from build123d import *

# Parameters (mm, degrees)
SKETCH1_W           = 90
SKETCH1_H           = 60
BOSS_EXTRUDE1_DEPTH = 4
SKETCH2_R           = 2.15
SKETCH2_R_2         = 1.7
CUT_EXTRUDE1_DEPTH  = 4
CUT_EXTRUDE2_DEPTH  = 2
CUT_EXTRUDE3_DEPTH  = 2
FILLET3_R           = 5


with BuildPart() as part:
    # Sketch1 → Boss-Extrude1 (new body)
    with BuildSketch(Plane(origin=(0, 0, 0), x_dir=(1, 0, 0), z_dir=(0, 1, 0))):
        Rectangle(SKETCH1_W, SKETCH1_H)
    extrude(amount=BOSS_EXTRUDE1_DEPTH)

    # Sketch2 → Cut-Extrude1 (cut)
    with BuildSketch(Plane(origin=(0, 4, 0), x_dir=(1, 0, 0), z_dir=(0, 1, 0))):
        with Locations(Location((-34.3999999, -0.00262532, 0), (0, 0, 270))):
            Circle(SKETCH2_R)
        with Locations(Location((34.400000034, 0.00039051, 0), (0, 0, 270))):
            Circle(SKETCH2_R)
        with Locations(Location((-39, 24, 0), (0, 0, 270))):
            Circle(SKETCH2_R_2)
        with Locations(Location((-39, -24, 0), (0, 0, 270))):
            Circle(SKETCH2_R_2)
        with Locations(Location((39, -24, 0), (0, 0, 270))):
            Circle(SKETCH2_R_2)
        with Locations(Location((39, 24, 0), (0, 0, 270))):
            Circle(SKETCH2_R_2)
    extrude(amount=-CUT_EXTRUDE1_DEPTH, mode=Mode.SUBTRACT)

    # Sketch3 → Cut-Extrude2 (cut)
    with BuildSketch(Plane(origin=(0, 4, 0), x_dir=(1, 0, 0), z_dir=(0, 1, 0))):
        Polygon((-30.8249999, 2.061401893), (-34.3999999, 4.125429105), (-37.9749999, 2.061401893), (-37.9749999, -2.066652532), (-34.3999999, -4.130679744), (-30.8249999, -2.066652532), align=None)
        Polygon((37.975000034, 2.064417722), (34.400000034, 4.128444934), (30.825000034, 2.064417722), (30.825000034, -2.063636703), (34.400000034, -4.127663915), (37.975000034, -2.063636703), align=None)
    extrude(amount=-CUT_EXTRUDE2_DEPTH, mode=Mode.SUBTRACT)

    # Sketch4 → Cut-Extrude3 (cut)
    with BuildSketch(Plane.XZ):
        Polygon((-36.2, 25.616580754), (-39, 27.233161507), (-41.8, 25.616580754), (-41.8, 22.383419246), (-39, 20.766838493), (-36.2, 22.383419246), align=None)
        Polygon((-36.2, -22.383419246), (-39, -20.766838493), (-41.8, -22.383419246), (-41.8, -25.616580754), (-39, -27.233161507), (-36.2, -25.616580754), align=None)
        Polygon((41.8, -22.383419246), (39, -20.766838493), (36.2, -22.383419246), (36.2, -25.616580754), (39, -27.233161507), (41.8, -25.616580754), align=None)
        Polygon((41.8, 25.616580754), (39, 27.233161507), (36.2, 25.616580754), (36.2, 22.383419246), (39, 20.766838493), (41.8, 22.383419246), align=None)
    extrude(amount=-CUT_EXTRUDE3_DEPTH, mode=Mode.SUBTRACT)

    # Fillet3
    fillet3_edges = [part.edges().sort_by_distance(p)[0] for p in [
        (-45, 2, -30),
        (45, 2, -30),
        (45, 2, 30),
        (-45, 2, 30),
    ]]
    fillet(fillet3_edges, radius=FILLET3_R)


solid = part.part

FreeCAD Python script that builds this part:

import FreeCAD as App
import Part
import Sketcher
from FreeCAD import Vector
Q = App.Units.Quantity


def edges_at(feature, points):
    """Names of the edges that pass closest to the given points."""
    edges = feature.Shape.Edges
    near = lambda p: min(range(len(edges)), key=lambda i: edges[i].distToShape(Part.Vertex(*p))[0])
    return sorted({f"Edge{near(p) + 1}" for p in points})

doc = App.newDocument("Part")
body = doc.addObject("PartDesign::Body", "Body")

sketch1 = body.newObject("Sketcher::SketchObject", "Sketch")
sketch1.AttachmentSupport = (doc.getObject("XZ_Plane"), [""])
sketch1.MapMode = "FlatFace"
sketch1.addGeometry(Part.LineSegment(Vector(-45, -30, 0), Vector(-45, 30, 0)), False)
sketch1.addGeometry(Part.LineSegment(Vector(-45, 30, 0), Vector(45, 30, 0)), False)
sketch1.addGeometry(Part.LineSegment(Vector(45, 30, 0), Vector(45, -30, 0)), False)
sketch1.addGeometry(Part.LineSegment(Vector(45, -30, 0), Vector(-45, -30, 0)), False)
sketch1.addConstraint(Sketcher.Constraint("Coincident", 0, 2, 1, 1))
sketch1.addConstraint(Sketcher.Constraint("Coincident", 1, 2, 2, 1))
sketch1.addConstraint(Sketcher.Constraint("Coincident", 2, 2, 3, 1))
sketch1.addConstraint(Sketcher.Constraint("Coincident", 3, 2, 0, 1))
sketch1.addConstraint(Sketcher.Constraint("Vertical", 0))
sketch1.addConstraint(Sketcher.Constraint("Horizontal", 1))
sketch1.addConstraint(Sketcher.Constraint("Vertical", 2))
sketch1.addConstraint(Sketcher.Constraint("Horizontal", 3))
sketch1.addConstraint(Sketcher.Constraint("Symmetric", 0, 2, 2, 2, -1, 1))
sketch1.addConstraint(Sketcher.Constraint("DistanceX", 1, 1, 1, 2, Q("90 mm")))
sketch1.addConstraint(Sketcher.Constraint("DistanceY", 0, 1, 0, 2, Q("60 mm")))
pad1 = body.newObject("PartDesign::Pad", "Pad")
pad1.Profile = sketch1
pad1.Length = 4
pad1.Reversed = True

sketch2 = body.newObject("Sketcher::SketchObject", "Sketch001")
sketch2.AttachmentSupport = (doc.getObject("XZ_Plane"), [""])
sketch2.MapMode = "FlatFace"
sketch2.AttachmentOffset = App.Placement(Vector(0, 0, -4), App.Rotation())
sketch2.addGeometry(Part.Circle(Vector(-34.4, 0, 0), Vector(0, 0, 1), 2.1), False)
sketch2.addGeometry(Part.Circle(Vector(34.4, 0, 0), Vector(0, 0, 1), 2.1), False)
sketch2.addGeometry(Part.Circle(Vector(-39, -24, 0), Vector(0, 0, 1), 1.7), False)
sketch2.addGeometry(Part.Circle(Vector(-39, 24, 0), Vector(0, 0, 1), 1.7), False)
sketch2.addGeometry(Part.Circle(Vector(39, 24, 0), Vector(0, 0, 1), 1.7), False)
sketch2.addGeometry(Part.Circle(Vector(39, -24, 0), Vector(0, 0, 1), 1.7), False)
sketch2.addConstraint(Sketcher.Constraint("Equal", 0, 1))
sketch2.addConstraint(Sketcher.Constraint("Equal", 2, 3))
sketch2.addConstraint(Sketcher.Constraint("Equal", 3, 4))
sketch2.addConstraint(Sketcher.Constraint("Equal", 4, 5))
sketch2.addConstraint(Sketcher.Constraint("Symmetric", 2, 3, 4, 3, -1, 1))
sketch2.addConstraint(Sketcher.Constraint("Symmetric", 3, 3, 5, 3, -1, 1))
sketch2.addConstraint(Sketcher.Constraint("Symmetric", 3, 3, 4, 3, -2))
sketch2.addConstraint(Sketcher.Constraint("Diameter", 0, Q("4.3 mm")))
sketch2.addConstraint(Sketcher.Constraint("Diameter", 2, Q("3.4 mm")))
sketch2.addConstraint(Sketcher.Constraint("DistanceX", 2, 3, -1, 1, Q("39 mm")))
sketch2.addConstraint(Sketcher.Constraint("DistanceY", 2, 3, -1, 1, Q("24 mm")))
sketch2.addConstraint(Sketcher.Constraint("DistanceX", 0, 3, -1, 1, Q("34.4 mm")))
sketch2.addConstraint(Sketcher.Constraint("DistanceX", -1, 1, 1, 3, Q("34.4 mm")))
sketch2.addConstraint(Sketcher.Constraint("DistanceY", 1, 3, -1, 1, Q("0.000391 mm")))
sketch2.addConstraint(Sketcher.Constraint("DistanceY", -1, 1, 0, 3, Q("0.002625 mm")))
pocket1 = body.newObject("PartDesign::Pocket", "Pocket")
pocket1.Profile = sketch2
pocket1.Length = 4
pocket1.Reversed = True

sketch3 = body.newObject("Sketcher::SketchObject", "Sketch002")
sketch3.AttachmentSupport = (doc.getObject("XZ_Plane"), [""])
sketch3.MapMode = "FlatFace"
sketch3.AttachmentOffset = App.Placement(Vector(0, 0, -4), App.Rotation())
sketch3.addGeometry(Part.LineSegment(Vector(-30.8, -2.1, 0), Vector(-34.4, -4.1, 0)), False)
sketch3.addGeometry(Part.LineSegment(Vector(-34.4, -4.1, 0), Vector(-38, -2.1, 0)), False)
sketch3.addGeometry(Part.LineSegment(Vector(-38, -2.1, 0), Vector(-38, 2.1, 0)), False)
sketch3.addGeometry(Part.LineSegment(Vector(-38, 2.1, 0), Vector(-34.4, 4.1, 0)), False)
sketch3.addGeometry(Part.LineSegment(Vector(-34.4, 4.1, 0), Vector(-30.8, 2.1, 0)), False)
sketch3.addGeometry(Part.LineSegment(Vector(-30.8, 2.1, 0), Vector(-30.8, -2.1, 0)), False)
sketch3.addGeometry(Part.LineSegment(Vector(38, -2.1, 0), Vector(34.4, -4.1, 0)), False)
sketch3.addGeometry(Part.LineSegment(Vector(34.4, -4.1, 0), Vector(30.8, -2.1, 0)), False)
sketch3.addGeometry(Part.LineSegment(Vector(30.8, -2.1, 0), Vector(30.8, 2.1, 0)), False)
sketch3.addGeometry(Part.LineSegment(Vector(30.8, 2.1, 0), Vector(34.4, 4.1, 0)), False)
sketch3.addGeometry(Part.LineSegment(Vector(34.4, 4.1, 0), Vector(38, 2.1, 0)), False)
sketch3.addGeometry(Part.LineSegment(Vector(38, 2.1, 0), Vector(38, -2.1, 0)), False)
sketch3.addConstraint(Sketcher.Constraint("Coincident", 0, 2, 1, 1))
sketch3.addConstraint(Sketcher.Constraint("Coincident", 1, 2, 2, 1))
sketch3.addConstraint(Sketcher.Constraint("Coincident", 2, 2, 3, 1))
sketch3.addConstraint(Sketcher.Constraint("Coincident", 3, 2, 4, 1))
sketch3.addConstraint(Sketcher.Constraint("Coincident", 4, 2, 5, 1))
sketch3.addConstraint(Sketcher.Constraint("Coincident", 5, 2, 0, 1))
sketch3.addConstraint(Sketcher.Constraint("Coincident", 6, 2, 7, 1))
sketch3.addConstraint(Sketcher.Constraint("Coincident", 7, 2, 8, 1))
sketch3.addConstraint(Sketcher.Constraint("Coincident", 8, 2, 9, 1))
sketch3.addConstraint(Sketcher.Constraint("Coincident", 9, 2, 10, 1))
sketch3.addConstraint(Sketcher.Constraint("Coincident", 10, 2, 11, 1))
sketch3.addConstraint(Sketcher.Constraint("Coincident", 11, 2, 6, 1))
sketch3.addConstraint(Sketcher.Constraint("Vertical", 2))
sketch3.addConstraint(Sketcher.Constraint("Vertical", 5))
sketch3.addConstraint(Sketcher.Constraint("Vertical", 8))
sketch3.addConstraint(Sketcher.Constraint("Vertical", 11))
sketch3.addConstraint(Sketcher.Constraint("Parallel", 0, 3))
sketch3.addConstraint(Sketcher.Constraint("Parallel", 1, 4))
sketch3.addConstraint(Sketcher.Constraint("Parallel", 3, 6))
sketch3.addConstraint(Sketcher.Constraint("Parallel", 4, 7))
sketch3.addConstraint(Sketcher.Constraint("Parallel", 6, 9))
sketch3.addConstraint(Sketcher.Constraint("Parallel", 7, 10))
sketch3.addConstraint(Sketcher.Constraint("Horizontal", 2, 2, 4, 2))
sketch3.addConstraint(Sketcher.Constraint("Horizontal", 1, 2, 5, 2))
sketch3.addConstraint(Sketcher.Constraint("Horizontal", 8, 2, 10, 2))
sketch3.addConstraint(Sketcher.Constraint("Horizontal", 7, 2, 11, 2))
sketch3.addConstraint(Sketcher.Constraint("Vertical", 0, 2, 3, 2))
sketch3.addConstraint(Sketcher.Constraint("Equal", 5, 8))
sketch3.addConstraint(Sketcher.Constraint("Equal", 4, 6))
sketch3.addConstraint(Sketcher.Constraint("Angle", 0, Q("-150 deg")))
sketch3.addConstraint(Sketcher.Constraint("DistanceX", 0, 2, -1, 1, Q("34.4 mm")))
sketch3.addConstraint(Sketcher.Constraint("DistanceX", -1, 1, 6, 2, Q("34.4 mm")))
sketch3.addConstraint(Sketcher.Constraint("DistanceX", 2, 2, 4, 2, Q("7.15 mm")))
sketch3.addConstraint(Sketcher.Constraint("DistanceY", 1, 2, -1, 1, Q("2.061402 mm")))
sketch3.addConstraint(Sketcher.Constraint("DistanceY", 2, 1, 2, 2, Q("4.128054 mm")))
sketch3.addConstraint(Sketcher.Constraint("DistanceY", 7, 2, 4, 2, Q("4.13107 mm")))
pocket2 = body.newObject("PartDesign::Pocket", "Pocket001")
pocket2.Profile = sketch3
pocket2.Length = 2
pocket2.Reversed = True

sketch4 = body.newObject("Sketcher::SketchObject", "Sketch003")
sketch4.AttachmentSupport = (doc.getObject("XZ_Plane"), [""])
sketch4.MapMode = "FlatFace"
sketch4.addGeometry(Part.LineSegment(Vector(-36.2, 25.6, 0), Vector(-39, 27.2, 0)), False)
sketch4.addGeometry(Part.LineSegment(Vector(-39, 27.2, 0), Vector(-41.8, 25.6, 0)), False)
sketch4.addGeometry(Part.LineSegment(Vector(-41.8, 25.6, 0), Vector(-41.8, 22.4, 0)), False)
sketch4.addGeometry(Part.LineSegment(Vector(-41.8, 22.4, 0), Vector(-39, 20.8, 0)), False)
sketch4.addGeometry(Part.LineSegment(Vector(-39, 20.8, 0), Vector(-36.2, 22.4, 0)), False)
sketch4.addGeometry(Part.LineSegment(Vector(-36.2, 22.4, 0), Vector(-36.2, 25.6, 0)), False)
sketch4.addGeometry(Part.LineSegment(Vector(-36.2, -22.4, 0), Vector(-39, -20.8, 0)), False)
sketch4.addGeometry(Part.LineSegment(Vector(-39, -20.8, 0), Vector(-41.8, -22.4, 0)), False)
sketch4.addGeometry(Part.LineSegment(Vector(-41.8, -22.4, 0), Vector(-41.8, -25.6, 0)), False)
sketch4.addGeometry(Part.LineSegment(Vector(-41.8, -25.6, 0), Vector(-39, -27.2, 0)), False)
sketch4.addGeometry(Part.LineSegment(Vector(-39, -27.2, 0), Vector(-36.2, -25.6, 0)), False)
sketch4.addGeometry(Part.LineSegment(Vector(-36.2, -25.6, 0), Vector(-36.2, -22.4, 0)), False)
sketch4.addGeometry(Part.LineSegment(Vector(41.8, -22.4, 0), Vector(39, -20.8, 0)), False)
sketch4.addGeometry(Part.LineSegment(Vector(39, -20.8, 0), Vector(36.2, -22.4, 0)), False)
sketch4.addGeometry(Part.LineSegment(Vector(36.2, -22.4, 0), Vector(36.2, -25.6, 0)), False)
sketch4.addGeometry(Part.LineSegment(Vector(36.2, -25.6, 0), Vector(39, -27.2, 0)), False)
sketch4.addGeometry(Part.LineSegment(Vector(39, -27.2, 0), Vector(41.8, -25.6, 0)), False)
sketch4.addGeometry(Part.LineSegment(Vector(41.8, -25.6, 0), Vector(41.8, -22.4, 0)), False)
sketch4.addGeometry(Part.LineSegment(Vector(41.8, 25.6, 0), Vector(39, 27.2, 0)), False)
sketch4.addGeometry(Part.LineSegment(Vector(39, 27.2, 0), Vector(36.2, 25.6, 0)), False)
sketch4.addGeometry(Part.LineSegment(Vector(36.2, 25.6, 0), Vector(36.2, 22.4, 0)), False)
sketch4.addGeometry(Part.LineSegment(Vector(36.2, 22.4, 0), Vector(39, 20.8, 0)), False)
sketch4.addGeometry(Part.LineSegment(Vector(39, 20.8, 0), Vector(41.8, 22.4, 0)), False)
sketch4.addGeometry(Part.LineSegment(Vector(41.8, 22.4, 0), Vector(41.8, 25.6, 0)), False)
sketch4.addConstraint(Sketcher.Constraint("Coincident", 0, 2, 1, 1))
sketch4.addConstraint(Sketcher.Constraint("Coincident", 1, 2, 2, 1))
sketch4.addConstraint(Sketcher.Constraint("Coincident", 2, 2, 3, 1))
sketch4.addConstraint(Sketcher.Constraint("Coincident", 3, 2, 4, 1))
sketch4.addConstraint(Sketcher.Constraint("Coincident", 4, 2, 5, 1))
sketch4.addConstraint(Sketcher.Constraint("Coincident", 5, 2, 0, 1))
sketch4.addConstraint(Sketcher.Constraint("Coincident", 6, 2, 7, 1))
sketch4.addConstraint(Sketcher.Constraint("Coincident", 7, 2, 8, 1))
sketch4.addConstraint(Sketcher.Constraint("Coincident", 8, 2, 9, 1))
sketch4.addConstraint(Sketcher.Constraint("Coincident", 9, 2, 10, 1))
sketch4.addConstraint(Sketcher.Constraint("Coincident", 10, 2, 11, 1))
sketch4.addConstraint(Sketcher.Constraint("Coincident", 11, 2, 6, 1))
sketch4.addConstraint(Sketcher.Constraint("Coincident", 12, 2, 13, 1))
sketch4.addConstraint(Sketcher.Constraint("Coincident", 13, 2, 14, 1))
sketch4.addConstraint(Sketcher.Constraint("Coincident", 14, 2, 15, 1))
sketch4.addConstraint(Sketcher.Constraint("Coincident", 15, 2, 16, 1))
sketch4.addConstraint(Sketcher.Constraint("Coincident", 16, 2, 17, 1))
sketch4.addConstraint(Sketcher.Constraint("Coincident", 17, 2, 12, 1))
sketch4.addConstraint(Sketcher.Constraint("Coincident", 18, 2, 19, 1))
sketch4.addConstraint(Sketcher.Constraint("Coincident", 19, 2, 20, 1))
sketch4.addConstraint(Sketcher.Constraint("Coincident", 20, 2, 21, 1))
sketch4.addConstraint(Sketcher.Constraint("Coincident", 21, 2, 22, 1))
sketch4.addConstraint(Sketcher.Constraint("Coincident", 22, 2, 23, 1))
sketch4.addConstraint(Sketcher.Constraint("Coincident", 23, 2, 18, 1))
sketch4.addConstraint(Sketcher.Constraint("Vertical", 2))
sketch4.addConstraint(Sketcher.Constraint("Vertical", 5))
sketch4.addConstraint(Sketcher.Constraint("Vertical", 8))
sketch4.addConstraint(Sketcher.Constraint("Vertical", 11))
sketch4.addConstraint(Sketcher.Constraint("Vertical", 14))
sketch4.addConstraint(Sketcher.Constraint("Vertical", 17))
sketch4.addConstraint(Sketcher.Constraint("Vertical", 20))
sketch4.addConstraint(Sketcher.Constraint("Vertical", 23))
sketch4.addConstraint(Sketcher.Constraint("Symmetric", 3, 2, 12, 2, -1, 1))
sketch4.addConstraint(Sketcher.Constraint("Symmetric", 4, 2, 13, 2, -1, 1))
sketch4.addConstraint(Sketcher.Constraint("Symmetric", 0, 2, 15, 2, -1, 1))
sketch4.addConstraint(Sketcher.Constraint("Symmetric", 1, 2, 16, 2, -1, 1))
sketch4.addConstraint(Sketcher.Constraint("Symmetric", 9, 2, 18, 2, -1, 1))
sketch4.addConstraint(Sketcher.Constraint("Symmetric", 10, 2, 19, 2, -1, 1))
sketch4.addConstraint(Sketcher.Constraint("Symmetric", 6, 2, 21, 2, -1, 1))
sketch4.addConstraint(Sketcher.Constraint("Symmetric", 7, 2, 22, 2, -1, 1))
sketch4.addConstraint(Sketcher.Constraint("Symmetric", 6, 2, 12, 2, -2))
sketch4.addConstraint(Sketcher.Constraint("Symmetric", 11, 2, 13, 2, -2))
sketch4.addConstraint(Sketcher.Constraint("Symmetric", 9, 2, 15, 2, -2))
sketch4.addConstraint(Sketcher.Constraint("Symmetric", 8, 2, 16, 2, -2))
sketch4.addConstraint(Sketcher.Constraint("Parallel", 0, 3))
sketch4.addConstraint(Sketcher.Constraint("Parallel", 1, 4))
sketch4.addConstraint(Sketcher.Constraint("Parallel", 3, 6))
sketch4.addConstraint(Sketcher.Constraint("Parallel", 4, 7))
sketch4.addConstraint(Sketcher.Constraint("Parallel", 7, 10))
sketch4.addConstraint(Sketcher.Constraint("Parallel", 9, 12))
sketch4.addConstraint(Sketcher.Constraint("Parallel", 12, 15))
sketch4.addConstraint(Sketcher.Constraint("Parallel", 15, 18))
sketch4.addConstraint(Sketcher.Constraint("Parallel", 18, 21))
sketch4.addConstraint(Sketcher.Constraint("Horizontal", 2, 2, 4, 2))
sketch4.addConstraint(Sketcher.Constraint("Horizontal", 1, 2, 5, 2))
sketch4.addConstraint(Sketcher.Constraint("Angle", 0, Q("150 deg")))
sketch4.addConstraint(Sketcher.Constraint("DistanceX", 0, 2, -1, 1, Q("39 mm")))
sketch4.addConstraint(Sketcher.Constraint("DistanceY", 7, 2, 1, 2, Q("48 mm")))
sketch4.addConstraint(Sketcher.Constraint("DistanceX", 1, 2, -1, 1, Q("41.8 mm")))
sketch4.addConstraint(Sketcher.Constraint("DistanceY", 2, 2, 2, 1, Q("3.233162 mm")))
pocket3 = body.newObject("PartDesign::Pocket", "Pocket002")
pocket3.Profile = sketch4
pocket3.Length = 2
doc.recompute()

fillet = body.newObject("PartDesign::Fillet", "Fillet")
fillet.Base = (pocket3, edges_at(pocket3, [
    (-45, 2, -30),
    (45, 2, -30),
    (45, 2, 30),
    (-45, 2, 30),
]))
fillet.Radius = 5

doc.recompute()
